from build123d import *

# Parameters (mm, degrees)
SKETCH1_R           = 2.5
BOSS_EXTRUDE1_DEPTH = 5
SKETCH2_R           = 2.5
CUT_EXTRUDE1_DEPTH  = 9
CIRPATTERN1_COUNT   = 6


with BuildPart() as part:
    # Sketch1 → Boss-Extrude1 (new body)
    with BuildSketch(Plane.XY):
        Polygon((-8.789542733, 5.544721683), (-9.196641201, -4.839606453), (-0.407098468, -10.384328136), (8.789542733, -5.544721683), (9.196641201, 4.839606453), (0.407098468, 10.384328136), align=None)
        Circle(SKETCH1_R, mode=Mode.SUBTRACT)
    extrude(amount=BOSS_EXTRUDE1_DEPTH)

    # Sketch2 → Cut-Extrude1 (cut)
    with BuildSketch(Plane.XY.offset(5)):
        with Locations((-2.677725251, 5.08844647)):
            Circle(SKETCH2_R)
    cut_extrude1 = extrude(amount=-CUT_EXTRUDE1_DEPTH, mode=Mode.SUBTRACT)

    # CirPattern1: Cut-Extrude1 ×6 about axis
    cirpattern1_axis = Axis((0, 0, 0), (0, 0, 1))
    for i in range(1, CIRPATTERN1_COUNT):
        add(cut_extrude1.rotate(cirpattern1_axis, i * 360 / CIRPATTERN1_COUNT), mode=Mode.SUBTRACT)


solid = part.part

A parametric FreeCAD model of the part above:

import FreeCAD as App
import Part
import Sketcher
Q = App.Units.Quantity


def add_polygon(sketch, points):
    """Adds a closed chain of lines whose ends are joined by coincident constraints."""
    first, n = sketch.GeometryCount, len(points)
    for a, b in zip(points, points[1:] + points[:1]):
        sketch.addGeometry(Part.LineSegment(App.Vector(*a, 0), App.Vector(*b, 0)), False)
    for i in range(n):
        sketch.addConstraint(Sketcher.Constraint("Coincident", first + i, 2, first + (i + 1) % n, 1))

doc = App.newDocument("Part")
body = doc.addObject("PartDesign::Body", "Body")

# Sketch on XY plane
sketch1 = body.newObject("Sketcher::SketchObject", "Sketch")
sketch1.AttachmentSupport = (doc.getObject("XY_Plane"), [""])
sketch1.MapMode = "FlatFace"
add_polygon(sketch1, [(-8.789543, 5.544722), (-9.196641, -4.839606), (-0.407098, -10.384328), (8.789543, -5.544722), (9.196641, 4.839606), (0.407098, 10.384328)])  # lines 0-5
sketch1.addGeometry(Part.Circle(App.Vector(0, 0, 0), App.Vector(0, 0, 1), 2.5), False)  # 6
sketch1.addConstraint([
    Sketcher.Constraint("Coincident", 6, 3, -1, 1),
    Sketcher.Constraint("Symmetric", 0, 2, 3, 2, -1, 1),
    Sketcher.Constraint("Symmetric", 1, 2, 4, 2, -1, 1),
    Sketcher.Constraint("Symmetric", 2, 2, 5, 2, -1, 1),
    Sketcher.Constraint("Equal", 0, 1),
    Sketcher.Constraint("Equal", 1, 2),
    Sketcher.Constraint("Diameter", 6, Q("5 mm")),
    Sketcher.Constraint("DistanceX", 1, 2, -1, 1, Q("0.407098 mm")),
    Sketcher.Constraint("DistanceX", 2, 2, 3, 2, Q("0.407098 mm")),
    Sketcher.Constraint("DistanceX", 0, 2, -1, 1, Q("9.196641 mm")),
    Sketcher.Constraint("DistanceY", 1, 2, -1, 1, Q("10.384328 mm")),
])
pad1 = body.newObject("PartDesign::Pad", "Pad")
pad1.Profile = sketch1
pad1.Length = 5

# Sketch on XY plane
sketch2 = body.newObject("Sketcher::SketchObject", "Sketch001")
sketch2.AttachmentSupport = (doc.getObject("XY_Plane"), [""])
sketch2.MapMode = "FlatFace"
sketch2.AttachmentOffset = App.Placement(App.Vector(0, 0, 5), App.Rotation())
sketch2.addGeometry(Part.Circle(App.Vector(-2.677725, 5.088446, 0), App.Vector(0, 0, 1), 2.5), False)
sketch2.addConstraint([
    Sketcher.Constraint("Diameter", 0, Q("5 mm")),
    Sketcher.Constraint("DistanceX", 0, 3, -1, 1, Q("2.677725 mm")),
    Sketcher.Constraint("DistanceY", -1, 1, 0, 3, Q("5.088446 mm")),
])
pocket1 = body.newObject("PartDesign::Pocket", "Pocket")
pocket1.Profile = sketch2
pocket1.Length = 9
doc.recompute()

polarpattern = body.newObject("PartDesign::PolarPattern", "PolarPattern")
polarpattern.Originals = [pocket1]
polarpattern.Axis = (doc.getObject("Z_Axis"), [""])
polarpattern.Angle = 360
polarpattern.Occurrences = 6
body.Tip = polarpattern

doc.recompute()
